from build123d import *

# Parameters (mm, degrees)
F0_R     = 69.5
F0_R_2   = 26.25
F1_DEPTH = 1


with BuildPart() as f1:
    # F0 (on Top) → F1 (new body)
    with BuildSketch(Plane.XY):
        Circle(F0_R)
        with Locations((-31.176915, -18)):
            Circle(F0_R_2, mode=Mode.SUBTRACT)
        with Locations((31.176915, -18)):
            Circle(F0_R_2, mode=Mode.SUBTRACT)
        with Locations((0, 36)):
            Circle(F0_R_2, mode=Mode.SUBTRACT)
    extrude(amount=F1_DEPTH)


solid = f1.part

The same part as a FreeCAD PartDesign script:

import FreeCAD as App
import Part
import Sketcher
from FreeCAD import Vector
Q = App.Units.Quantity

doc = App.newDocument("Part")
body = doc.addObject("PartDesign::Body", "Body")

# Sketch on XY plane
sketch1 = body.newObject("Sketcher::SketchObject", "Sketch")
sketch1.AttachmentSupport = (doc.getObject("XY_Plane"), [""])
sketch1.MapMode = "FlatFace"
sketch1.addGeometry([
    Part.Circle(Vector(0, 0, 0), Vector(0, 0, 1), 70),
    Part.Circle(Vector(-31, -18, 0), Vector(0, 0, 1), 26),
    Part.Circle(Vector(31, -18, 0), Vector(0, 0, 1), 26),
    Part.Circle(Vector(0, 36, 0), Vector(0, 0, 1), 26),
], False)
sketch1.addConstraint([
    Sketcher.Constraint("Coincident", 0, 3, -1, 1),
    Sketcher.Constraint("Equal", 1, 2),
    Sketcher.Constraint("Equal", 2, 3),
    Sketcher.Constraint("Symmetric", 1, 3, 2, 3, -2),
    Sketcher.Constraint("PointOnObject", 3, 3, -2),
    Sketcher.Constraint("Diameter", 0, Q("139 mm")),
    Sketcher.Constraint("Diameter", 1, Q("52.5 mm")),
    Sketcher.Constraint("DistanceY", 1, 3, -1, 1, Q("18 mm")),
    Sketcher.Constraint("DistanceY", -1, 1, 3, 3, Q("36 mm")),
    Sketcher.Constraint("DistanceX", 1, 3, 2, 3, Q("62.35383 mm")),
])
pad1 = body.newObject("PartDesign::Pad", "Pad")
pad1.Profile = sketch1
pad1.Length = 1

doc.recompute()
